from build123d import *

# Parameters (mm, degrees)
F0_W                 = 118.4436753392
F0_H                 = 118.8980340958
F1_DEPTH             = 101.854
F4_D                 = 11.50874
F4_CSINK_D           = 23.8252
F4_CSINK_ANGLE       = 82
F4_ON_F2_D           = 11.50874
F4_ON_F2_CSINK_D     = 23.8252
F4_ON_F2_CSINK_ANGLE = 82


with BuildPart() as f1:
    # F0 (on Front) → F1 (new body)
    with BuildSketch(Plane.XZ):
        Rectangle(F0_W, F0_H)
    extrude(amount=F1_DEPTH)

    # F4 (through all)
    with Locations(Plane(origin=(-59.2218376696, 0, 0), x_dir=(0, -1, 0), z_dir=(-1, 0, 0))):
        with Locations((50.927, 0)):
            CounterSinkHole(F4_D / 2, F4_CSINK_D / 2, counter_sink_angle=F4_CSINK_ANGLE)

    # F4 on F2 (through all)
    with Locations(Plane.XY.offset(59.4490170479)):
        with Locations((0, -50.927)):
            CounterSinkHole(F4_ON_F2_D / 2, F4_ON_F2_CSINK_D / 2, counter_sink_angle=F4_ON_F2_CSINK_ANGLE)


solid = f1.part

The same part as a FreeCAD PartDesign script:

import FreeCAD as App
import Part
import Sketcher
Q = App.Units.Quantity

doc = App.newDocument("Part")
body = doc.addObject("PartDesign::Body", "Body")

# Sketch on XZ plane
sketch1 = body.newObject("Sketcher::SketchObject", "Sketch")
sketch1.AttachmentSupport = (doc.getObject("XZ_Plane"), [""])
sketch1.MapMode = "FlatFace"
sketch1.addGeometry([
    Part.LineSegment(App.Vector(-59, 59, 0), App.Vector(-59, -59, 0)),
    Part.LineSegment(App.Vector(-59, -59, 0), App.Vector(59, -59, 0)),
    Part.LineSegment(App.Vector(59, -59, 0), App.Vector(59, 59, 0)),
    Part.LineSegment(App.Vector(59, 59, 0), App.Vector(-59, 59, 0)),
], False)
sketch1.addConstraint([
    Sketcher.Constraint("Coincident", 0, 2, 1, 1),
    Sketcher.Constraint("Coincident", 1, 2, 2, 1),
    Sketcher.Constraint("Coincident", 2, 2, 3, 1),
    Sketcher.Constraint("Coincident", 3, 2, 0, 1),
    Sketcher.Constraint("Vertical", 0),
    Sketcher.Constraint("Horizontal", 1),
    Sketcher.Constraint("Vertical", 2),
    Sketcher.Constraint("Horizontal", 3),
    Sketcher.Constraint("Symmetric", 0, 2, 2, 2, -1, 1),
    Sketcher.Constraint("DistanceX", 1, 1, 1, 2, Q("118.443675 mm")),
    Sketcher.Constraint("DistanceY", 0, 2, 0, 1, Q("118.898034 mm")),
])
pad1 = body.newObject("PartDesign::Pad", "Pad")
pad1.Profile = sketch1
pad1.Length = Q("4.01 in")

# Sketch on YZ plane
sketch2 = body.newObject("Sketcher::SketchObject", "Sketch001")
sketch2.AttachmentSupport = (doc.getObject("YZ_Plane"), [""])
sketch2.MapMode = "FlatFace"
sketch2.AttachmentOffset = App.Placement(App.Vector(0, 0, -59.221838), App.Rotation())
sketch2.addGeometry(Part.Circle(App.Vector(-51, 0, 0), App.Vector(0, 0, 1), 6), False)
sketch2.addConstraint([
    Sketcher.Constraint("PointOnObject", 0, 3, -1),
    Sketcher.Constraint("Diameter", 0, Q("0.4531 in")),
    Sketcher.Constraint("DistanceX", 0, 3, -1, 1, Q("2.005 in")),
])
doc.recompute()
hole = body.newObject("PartDesign::Hole", "Hole")
hole.Profile = sketch2
hole.ThreadType = "None"
hole.Diameter = Q("0.4531 in")
hole.DepthType = "ThroughAll"
hole.HoleCutType = "Countersink"
hole.HoleCutDiameter = Q("0.938 in")
hole.HoleCutCountersinkAngle = 82
hole.Reversed = True

# Sketch on XY plane
sketch3 = body.newObject("Sketcher::SketchObject", "Sketch002")
sketch3.AttachmentSupport = (doc.getObject("XY_Plane"), [""])
sketch3.MapMode = "FlatFace"
sketch3.AttachmentOffset = App.Placement(App.Vector(0, 0, 59.449017), App.Rotation())
sketch3.addGeometry(Part.Circle(App.Vector(0, -51, 0), App.Vector(0, 0, 1), 6), False)
sketch3.addConstraint([
    Sketcher.Constraint("PointOnObject", 0, 3, -2),
    Sketcher.Constraint("Diameter", 0, Q("0.4531 in")),
    Sketcher.Constraint("DistanceY", 0, 3, -1, 1, Q("2.005 in")),
])
doc.recompute()
hole2 = body.newObject("PartDesign::Hole", "Hole001")
hole2.Profile = sketch3
hole2.ThreadType = "None"
hole2.Diameter = Q("0.4531 in")
hole2.DepthType = "ThroughAll"
hole2.HoleCutType = "Countersink"
hole2.HoleCutDiameter = Q("0.938 in")
hole2.HoleCutCountersinkAngle = 82

doc.recompute()
